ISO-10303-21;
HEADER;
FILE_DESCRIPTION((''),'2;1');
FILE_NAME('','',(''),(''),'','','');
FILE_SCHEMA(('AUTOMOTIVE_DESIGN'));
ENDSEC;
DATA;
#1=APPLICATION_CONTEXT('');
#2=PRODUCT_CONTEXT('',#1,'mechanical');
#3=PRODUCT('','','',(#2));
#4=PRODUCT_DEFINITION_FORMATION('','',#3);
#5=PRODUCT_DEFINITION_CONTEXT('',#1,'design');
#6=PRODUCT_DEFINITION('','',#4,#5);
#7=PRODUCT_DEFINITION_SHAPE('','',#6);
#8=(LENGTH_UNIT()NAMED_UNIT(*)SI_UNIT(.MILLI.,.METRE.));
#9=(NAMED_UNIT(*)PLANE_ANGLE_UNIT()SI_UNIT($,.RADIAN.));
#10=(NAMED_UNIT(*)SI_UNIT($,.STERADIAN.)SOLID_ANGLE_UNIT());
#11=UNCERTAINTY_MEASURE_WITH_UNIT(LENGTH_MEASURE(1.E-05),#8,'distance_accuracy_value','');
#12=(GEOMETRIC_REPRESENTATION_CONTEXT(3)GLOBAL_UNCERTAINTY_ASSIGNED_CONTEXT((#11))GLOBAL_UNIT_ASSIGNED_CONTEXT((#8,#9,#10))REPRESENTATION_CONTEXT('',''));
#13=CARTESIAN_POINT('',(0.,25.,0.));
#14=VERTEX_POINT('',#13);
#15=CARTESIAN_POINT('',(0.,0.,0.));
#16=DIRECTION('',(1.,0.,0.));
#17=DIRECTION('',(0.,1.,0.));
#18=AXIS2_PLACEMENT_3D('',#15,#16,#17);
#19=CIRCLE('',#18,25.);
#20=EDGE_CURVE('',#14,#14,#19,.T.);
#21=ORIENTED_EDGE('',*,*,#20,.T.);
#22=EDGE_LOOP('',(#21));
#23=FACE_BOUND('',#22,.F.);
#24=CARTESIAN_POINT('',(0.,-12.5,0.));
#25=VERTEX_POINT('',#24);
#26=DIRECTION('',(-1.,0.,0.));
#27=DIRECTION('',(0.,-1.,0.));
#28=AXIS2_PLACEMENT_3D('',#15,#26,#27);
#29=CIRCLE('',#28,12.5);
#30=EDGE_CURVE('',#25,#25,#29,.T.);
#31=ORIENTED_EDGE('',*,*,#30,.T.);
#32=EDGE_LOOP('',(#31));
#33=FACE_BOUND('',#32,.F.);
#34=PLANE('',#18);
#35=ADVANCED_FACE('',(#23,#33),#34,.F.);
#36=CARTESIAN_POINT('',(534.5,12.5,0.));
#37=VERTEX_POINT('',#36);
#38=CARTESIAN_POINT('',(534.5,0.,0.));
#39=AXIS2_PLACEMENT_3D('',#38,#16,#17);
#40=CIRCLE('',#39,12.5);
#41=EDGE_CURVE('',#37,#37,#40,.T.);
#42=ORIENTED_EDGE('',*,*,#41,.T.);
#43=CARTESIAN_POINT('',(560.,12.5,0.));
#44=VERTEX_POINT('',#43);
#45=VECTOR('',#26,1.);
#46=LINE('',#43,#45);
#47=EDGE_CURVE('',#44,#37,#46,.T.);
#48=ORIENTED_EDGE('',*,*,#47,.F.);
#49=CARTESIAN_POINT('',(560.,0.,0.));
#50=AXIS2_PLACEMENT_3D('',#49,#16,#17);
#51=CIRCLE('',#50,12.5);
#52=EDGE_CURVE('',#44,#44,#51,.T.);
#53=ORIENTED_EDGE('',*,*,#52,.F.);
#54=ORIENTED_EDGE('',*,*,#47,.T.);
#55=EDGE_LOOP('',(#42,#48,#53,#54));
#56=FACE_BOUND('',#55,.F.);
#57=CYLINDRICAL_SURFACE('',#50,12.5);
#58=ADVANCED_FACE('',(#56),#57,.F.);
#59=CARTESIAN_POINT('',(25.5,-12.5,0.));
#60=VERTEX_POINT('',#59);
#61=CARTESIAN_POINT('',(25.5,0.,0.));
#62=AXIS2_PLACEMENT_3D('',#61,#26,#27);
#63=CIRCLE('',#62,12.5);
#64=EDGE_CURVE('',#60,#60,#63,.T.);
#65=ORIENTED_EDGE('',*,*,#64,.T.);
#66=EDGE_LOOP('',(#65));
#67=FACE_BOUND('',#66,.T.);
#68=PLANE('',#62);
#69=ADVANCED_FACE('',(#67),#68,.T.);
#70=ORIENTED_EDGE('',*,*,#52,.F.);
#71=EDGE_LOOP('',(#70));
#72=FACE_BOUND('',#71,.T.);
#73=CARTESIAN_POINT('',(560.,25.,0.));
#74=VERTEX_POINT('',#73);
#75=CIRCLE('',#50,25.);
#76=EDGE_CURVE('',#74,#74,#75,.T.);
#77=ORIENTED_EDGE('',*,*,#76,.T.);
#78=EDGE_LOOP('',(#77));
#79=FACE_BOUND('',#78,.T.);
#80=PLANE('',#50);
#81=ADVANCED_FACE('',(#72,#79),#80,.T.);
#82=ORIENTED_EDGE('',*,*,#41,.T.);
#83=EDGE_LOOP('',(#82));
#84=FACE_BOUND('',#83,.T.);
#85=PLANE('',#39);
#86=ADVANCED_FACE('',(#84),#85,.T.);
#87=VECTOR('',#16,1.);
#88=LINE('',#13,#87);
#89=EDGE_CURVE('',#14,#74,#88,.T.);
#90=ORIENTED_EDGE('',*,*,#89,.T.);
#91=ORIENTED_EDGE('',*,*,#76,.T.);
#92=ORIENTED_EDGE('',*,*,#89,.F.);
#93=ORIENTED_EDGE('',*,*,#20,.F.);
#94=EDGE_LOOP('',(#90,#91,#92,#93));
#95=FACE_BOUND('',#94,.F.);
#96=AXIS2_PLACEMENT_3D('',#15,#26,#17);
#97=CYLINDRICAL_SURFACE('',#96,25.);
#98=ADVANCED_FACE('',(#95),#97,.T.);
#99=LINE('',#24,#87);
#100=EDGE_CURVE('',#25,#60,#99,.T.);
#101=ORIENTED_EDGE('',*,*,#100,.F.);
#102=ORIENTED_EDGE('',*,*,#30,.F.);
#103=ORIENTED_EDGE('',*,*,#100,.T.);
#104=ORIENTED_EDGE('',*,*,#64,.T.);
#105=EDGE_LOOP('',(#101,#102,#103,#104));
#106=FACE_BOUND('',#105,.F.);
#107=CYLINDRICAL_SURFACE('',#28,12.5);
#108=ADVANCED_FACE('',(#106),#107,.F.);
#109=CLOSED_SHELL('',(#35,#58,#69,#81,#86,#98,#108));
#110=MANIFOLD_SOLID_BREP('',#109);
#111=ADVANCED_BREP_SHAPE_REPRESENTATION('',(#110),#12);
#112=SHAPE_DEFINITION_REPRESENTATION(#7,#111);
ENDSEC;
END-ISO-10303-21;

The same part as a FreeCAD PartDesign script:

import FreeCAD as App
import Part
import Sketcher
from FreeCAD import Vector

doc = App.newDocument("Part")
params = doc.addObject("Spreadsheet::Sheet", "Params")
for row, (alias, value) in enumerate([
    ("sketch1_diameter", "50 mm"),
    ("pad1_length", "560 mm"),
    ("sketch2_diameter", "25 mm"),
    ("pocket1_length", "25.5 mm"),
    ("sketch3_diameter", "25 mm"),
    ("pocket2_length", "25.5 mm"),
], start=1):
    params.set(f"A{row}", alias)
    params.set(f"B{row}", "=" + value)
    params.setAlias(f"B{row}", alias)

body = doc.addObject("PartDesign::Body", "Body")

# Sketch on YZ plane
sketch1 = body.newObject("Sketcher::SketchObject", "Sketch")
sketch1.AttachmentSupport = (doc.getObject("YZ_Plane"), [""])
sketch1.MapMode = "FlatFace"
sketch1.addGeometry(Part.Circle(Vector(0, 0, 0), Vector(0, 0, 1), 25), False)
sketch1.addConstraint([
    Sketcher.Constraint("Coincident", 0, 3, -1, 1),
    Sketcher.Constraint("Diameter", 0, 50.0),
])
sketch1.setExpression("Constraints[1]", "Params.sketch1_diameter")
pad1 = body.newObject("PartDesign::Pad", "Pad")
pad1.Profile = sketch1
pad1.setExpression("Length", "Params.pad1_length")

# Sketch on YZ plane
sketch2 = body.newObject("Sketcher::SketchObject", "Sketch001")
sketch2.AttachmentSupport = (doc.getObject("YZ_Plane"), [""])
sketch2.MapMode = "FlatFace"
sketch2.addGeometry(Part.Circle(Vector(0, 0, 0), Vector(0, 0, 1), 12.5), False)
sketch2.addConstraint([
    Sketcher.Constraint("Coincident", 0, 3, -1, 1),
    Sketcher.Constraint("Diameter", 0, 25.0),
])
sketch2.setExpression("Constraints[1]", "Params.sketch2_diameter")
pocket1 = body.newObject("PartDesign::Pocket", "Pocket")
pocket1.Profile = sketch2
pocket1.setExpression("Length", "Params.pocket1_length")
pocket1.Reversed = True

# Sketch on YZ plane
sketch3 = body.newObject("Sketcher::SketchObject", "Sketch002")
sketch3.AttachmentSupport = (doc.getObject("YZ_Plane"), [""])
sketch3.MapMode = "FlatFace"
sketch3.AttachmentOffset = App.Placement(Vector(0, 0, 560), App.Rotation())
sketch3.addGeometry(Part.Circle(Vector(0, 0, 0), Vector(0, 0, 1), 12.5), False)
sketch3.addConstraint([
    Sketcher.Constraint("Coincident", 0, 3, -1, 1),
    Sketcher.Constraint("Diameter", 0, 25.0),
])
sketch3.setExpression("Constraints[1]", "Params.sketch3_diameter")
pocket2 = body.newObject("PartDesign::Pocket", "Pocket001")
pocket2.Profile = sketch3
pocket2.setExpression("Length", "Params.pocket2_length")

doc.recompute()
